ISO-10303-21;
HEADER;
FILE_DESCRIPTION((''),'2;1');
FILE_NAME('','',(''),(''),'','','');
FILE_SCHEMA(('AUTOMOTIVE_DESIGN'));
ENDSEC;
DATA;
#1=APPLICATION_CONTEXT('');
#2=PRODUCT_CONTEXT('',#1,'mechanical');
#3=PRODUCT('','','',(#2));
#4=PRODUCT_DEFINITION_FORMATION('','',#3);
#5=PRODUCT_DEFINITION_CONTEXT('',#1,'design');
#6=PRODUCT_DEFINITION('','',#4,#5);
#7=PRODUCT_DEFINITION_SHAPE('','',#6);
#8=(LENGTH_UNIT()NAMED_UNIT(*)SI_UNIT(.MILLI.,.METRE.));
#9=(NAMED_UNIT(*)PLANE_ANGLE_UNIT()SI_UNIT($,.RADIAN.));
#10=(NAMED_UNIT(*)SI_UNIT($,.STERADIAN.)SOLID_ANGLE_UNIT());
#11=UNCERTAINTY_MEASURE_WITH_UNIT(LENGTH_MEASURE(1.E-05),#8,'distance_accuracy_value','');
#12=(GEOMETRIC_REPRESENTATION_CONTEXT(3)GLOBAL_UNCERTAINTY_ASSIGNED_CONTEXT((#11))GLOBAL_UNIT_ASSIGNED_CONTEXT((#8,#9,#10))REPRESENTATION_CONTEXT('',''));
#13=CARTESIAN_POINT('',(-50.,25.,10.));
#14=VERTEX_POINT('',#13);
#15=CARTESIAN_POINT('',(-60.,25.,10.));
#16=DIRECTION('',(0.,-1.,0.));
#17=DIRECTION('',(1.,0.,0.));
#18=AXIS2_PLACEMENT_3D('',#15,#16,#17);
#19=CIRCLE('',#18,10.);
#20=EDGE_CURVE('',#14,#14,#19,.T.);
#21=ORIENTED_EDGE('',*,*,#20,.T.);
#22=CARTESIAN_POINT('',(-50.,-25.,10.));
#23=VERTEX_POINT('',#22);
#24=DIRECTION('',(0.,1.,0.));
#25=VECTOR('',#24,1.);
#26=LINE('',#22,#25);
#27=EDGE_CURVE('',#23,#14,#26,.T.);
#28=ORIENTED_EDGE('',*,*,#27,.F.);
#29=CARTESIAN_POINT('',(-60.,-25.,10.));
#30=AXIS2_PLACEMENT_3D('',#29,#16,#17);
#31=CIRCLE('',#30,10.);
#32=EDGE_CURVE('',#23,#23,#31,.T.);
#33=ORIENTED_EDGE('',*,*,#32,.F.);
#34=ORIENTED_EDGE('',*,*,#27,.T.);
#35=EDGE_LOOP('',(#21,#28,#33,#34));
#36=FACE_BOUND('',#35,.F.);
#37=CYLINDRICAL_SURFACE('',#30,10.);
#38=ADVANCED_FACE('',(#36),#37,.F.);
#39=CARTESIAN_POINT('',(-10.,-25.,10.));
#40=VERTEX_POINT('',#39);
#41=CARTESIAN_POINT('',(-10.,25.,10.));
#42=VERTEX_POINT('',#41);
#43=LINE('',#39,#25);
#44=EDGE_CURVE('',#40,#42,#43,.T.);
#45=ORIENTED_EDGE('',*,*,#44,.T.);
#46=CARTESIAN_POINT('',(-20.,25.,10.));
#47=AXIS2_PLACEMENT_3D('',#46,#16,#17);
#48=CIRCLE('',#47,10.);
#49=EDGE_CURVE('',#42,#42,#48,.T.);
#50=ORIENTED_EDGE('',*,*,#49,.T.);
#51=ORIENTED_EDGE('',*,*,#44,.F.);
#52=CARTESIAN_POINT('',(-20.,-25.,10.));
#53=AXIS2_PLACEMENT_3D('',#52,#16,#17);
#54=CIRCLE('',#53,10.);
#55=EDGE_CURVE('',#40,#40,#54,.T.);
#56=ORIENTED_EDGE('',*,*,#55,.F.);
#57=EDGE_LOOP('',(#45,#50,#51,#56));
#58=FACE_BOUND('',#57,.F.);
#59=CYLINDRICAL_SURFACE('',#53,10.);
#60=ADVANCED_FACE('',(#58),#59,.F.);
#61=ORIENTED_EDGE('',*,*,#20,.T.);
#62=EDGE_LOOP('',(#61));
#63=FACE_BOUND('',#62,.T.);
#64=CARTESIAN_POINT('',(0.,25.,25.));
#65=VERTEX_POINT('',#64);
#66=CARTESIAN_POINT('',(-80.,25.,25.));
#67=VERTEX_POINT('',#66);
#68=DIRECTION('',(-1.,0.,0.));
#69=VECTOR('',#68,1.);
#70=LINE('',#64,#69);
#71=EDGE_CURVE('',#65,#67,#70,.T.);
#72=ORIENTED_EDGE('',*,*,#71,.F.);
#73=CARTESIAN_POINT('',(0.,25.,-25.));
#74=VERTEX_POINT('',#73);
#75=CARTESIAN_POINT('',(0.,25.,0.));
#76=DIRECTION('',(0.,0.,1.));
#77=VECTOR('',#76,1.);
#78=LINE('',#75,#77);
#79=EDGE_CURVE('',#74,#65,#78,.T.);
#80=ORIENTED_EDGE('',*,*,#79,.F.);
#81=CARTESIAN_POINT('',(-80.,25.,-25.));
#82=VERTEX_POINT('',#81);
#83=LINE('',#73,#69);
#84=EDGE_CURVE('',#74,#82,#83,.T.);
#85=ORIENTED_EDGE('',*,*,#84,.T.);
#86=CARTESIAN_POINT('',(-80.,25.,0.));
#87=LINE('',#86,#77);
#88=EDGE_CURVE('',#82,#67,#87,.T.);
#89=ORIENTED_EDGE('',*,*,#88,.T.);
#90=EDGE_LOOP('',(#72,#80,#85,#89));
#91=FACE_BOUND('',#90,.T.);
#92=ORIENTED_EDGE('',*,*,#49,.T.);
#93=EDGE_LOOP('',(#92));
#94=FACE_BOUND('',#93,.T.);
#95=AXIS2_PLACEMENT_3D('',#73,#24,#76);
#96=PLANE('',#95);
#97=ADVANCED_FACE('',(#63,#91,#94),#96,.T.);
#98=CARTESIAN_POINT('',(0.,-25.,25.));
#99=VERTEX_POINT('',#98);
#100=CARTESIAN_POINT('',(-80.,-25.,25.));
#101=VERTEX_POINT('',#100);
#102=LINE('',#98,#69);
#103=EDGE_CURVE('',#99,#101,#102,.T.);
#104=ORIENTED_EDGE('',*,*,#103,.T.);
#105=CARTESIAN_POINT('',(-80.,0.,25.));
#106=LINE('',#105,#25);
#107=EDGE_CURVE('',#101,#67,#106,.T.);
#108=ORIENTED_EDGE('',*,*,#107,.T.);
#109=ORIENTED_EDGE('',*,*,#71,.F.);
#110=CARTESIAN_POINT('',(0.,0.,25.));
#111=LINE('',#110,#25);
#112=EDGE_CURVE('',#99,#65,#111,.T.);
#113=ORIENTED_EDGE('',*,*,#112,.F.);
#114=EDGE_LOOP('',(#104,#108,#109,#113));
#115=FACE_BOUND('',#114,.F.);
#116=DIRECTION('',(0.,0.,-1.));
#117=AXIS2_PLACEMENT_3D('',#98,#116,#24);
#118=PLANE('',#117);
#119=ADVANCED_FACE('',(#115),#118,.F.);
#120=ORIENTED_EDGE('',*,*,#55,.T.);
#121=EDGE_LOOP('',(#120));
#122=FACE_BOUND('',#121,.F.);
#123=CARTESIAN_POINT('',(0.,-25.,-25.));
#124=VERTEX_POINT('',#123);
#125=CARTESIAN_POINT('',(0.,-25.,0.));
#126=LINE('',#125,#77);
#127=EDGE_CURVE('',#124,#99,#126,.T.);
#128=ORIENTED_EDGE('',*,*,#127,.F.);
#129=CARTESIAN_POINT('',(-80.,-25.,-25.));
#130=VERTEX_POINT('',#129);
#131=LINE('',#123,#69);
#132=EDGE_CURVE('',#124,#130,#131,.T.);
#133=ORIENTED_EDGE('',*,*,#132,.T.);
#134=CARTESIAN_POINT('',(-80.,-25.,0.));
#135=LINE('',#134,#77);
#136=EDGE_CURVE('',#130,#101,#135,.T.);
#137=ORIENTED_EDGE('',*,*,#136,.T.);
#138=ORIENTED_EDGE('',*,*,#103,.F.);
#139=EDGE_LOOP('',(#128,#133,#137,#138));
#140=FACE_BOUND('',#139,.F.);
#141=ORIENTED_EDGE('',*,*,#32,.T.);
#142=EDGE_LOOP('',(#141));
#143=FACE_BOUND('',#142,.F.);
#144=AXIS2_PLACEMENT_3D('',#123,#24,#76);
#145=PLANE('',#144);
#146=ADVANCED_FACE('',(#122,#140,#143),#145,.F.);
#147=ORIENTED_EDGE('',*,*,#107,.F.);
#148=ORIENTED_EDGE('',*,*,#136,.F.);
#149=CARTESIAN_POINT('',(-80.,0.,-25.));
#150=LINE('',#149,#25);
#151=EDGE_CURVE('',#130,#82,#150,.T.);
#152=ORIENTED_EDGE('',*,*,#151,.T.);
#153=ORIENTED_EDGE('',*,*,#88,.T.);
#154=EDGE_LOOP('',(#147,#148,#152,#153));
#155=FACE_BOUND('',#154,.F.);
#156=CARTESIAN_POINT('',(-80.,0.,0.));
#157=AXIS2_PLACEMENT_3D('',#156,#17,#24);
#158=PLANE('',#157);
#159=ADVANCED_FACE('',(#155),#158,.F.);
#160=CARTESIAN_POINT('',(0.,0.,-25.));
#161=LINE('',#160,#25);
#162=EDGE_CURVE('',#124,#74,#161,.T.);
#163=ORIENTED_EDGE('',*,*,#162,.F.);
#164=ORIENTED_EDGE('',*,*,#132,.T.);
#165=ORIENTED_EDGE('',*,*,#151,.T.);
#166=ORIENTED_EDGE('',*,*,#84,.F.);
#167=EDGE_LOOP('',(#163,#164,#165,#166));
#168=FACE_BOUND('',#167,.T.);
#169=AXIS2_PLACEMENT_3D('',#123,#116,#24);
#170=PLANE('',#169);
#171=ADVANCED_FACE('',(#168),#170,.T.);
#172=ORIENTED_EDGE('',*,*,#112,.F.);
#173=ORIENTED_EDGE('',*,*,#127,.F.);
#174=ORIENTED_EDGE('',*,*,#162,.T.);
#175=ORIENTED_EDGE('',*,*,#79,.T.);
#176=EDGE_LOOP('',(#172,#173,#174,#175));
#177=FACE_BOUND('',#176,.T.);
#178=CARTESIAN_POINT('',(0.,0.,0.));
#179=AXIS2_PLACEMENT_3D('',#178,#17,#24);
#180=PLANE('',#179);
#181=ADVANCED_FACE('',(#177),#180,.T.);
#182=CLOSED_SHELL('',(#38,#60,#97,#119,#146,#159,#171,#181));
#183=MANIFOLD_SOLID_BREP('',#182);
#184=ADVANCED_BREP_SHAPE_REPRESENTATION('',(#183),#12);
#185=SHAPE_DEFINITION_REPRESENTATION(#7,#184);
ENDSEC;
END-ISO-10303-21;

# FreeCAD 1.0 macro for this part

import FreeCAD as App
import Part
import Sketcher


def add_polygon(sketch, points):
    """Adds a closed chain of lines whose ends are joined by coincident constraints."""
    first, n = sketch.GeometryCount, len(points)
    for a, b in zip(points, points[1:] + points[:1]):
        sketch.addGeometry(Part.LineSegment(App.Vector(*a, 0), App.Vector(*b, 0)), False)
    for i in range(n):
        sketch.addConstraint(Sketcher.Constraint("Coincident", first + i, 2, first + (i + 1) % n, 1))

doc = App.newDocument("Part")
body = doc.addObject("PartDesign::Body", "Body")

# Sketch on YZ plane
sketch1 = body.newObject("Sketcher::SketchObject", "Sketch")
sketch1.AttachmentSupport = (doc.getObject("YZ_Plane"), [""])
sketch1.MapMode = "FlatFace"
add_polygon(sketch1, [(-25, 25), (-25, -25), (25, -25), (25, 25)])  # lines 0-3
sketch1.addConstraint([
    Sketcher.Constraint("Vertical", 0),
    Sketcher.Constraint("Horizontal", 1),
    Sketcher.Constraint("Vertical", 2),
    Sketcher.Constraint("Horizontal", 3),
    Sketcher.Constraint("Symmetric", 0, 2, 2, 2, -1, 1),
    Sketcher.Constraint("Equal", 3, 0),
    Sketcher.Constraint("DistanceX", 1, 1, 1, 2, 50.0),
])
pad1 = body.newObject("PartDesign::Pad", "Pad")
pad1.Profile = sketch1
pad1.Length = 80
pad1.Reversed = True

# Sketch on XZ plane
sketch2 = body.newObject("Sketcher::SketchObject", "Sketch001")
sketch2.AttachmentSupport = (doc.getObject("XZ_Plane"), [""])
sketch2.MapMode = "FlatFace"
sketch2.AttachmentOffset = App.Placement(App.Vector(0, 0, 25), App.Rotation())
sketch2.addGeometry([
    Part.Circle(App.Vector(-60, 10, 0), App.Vector(0, 0, 1), 10),
    Part.Circle(App.Vector(-20, 10, 0), App.Vector(0, 0, 1), 10),
], False)
sketch2.addConstraint([
    Sketcher.Constraint("Equal", 0, 1),
    Sketcher.Constraint("Horizontal", 0, 3, 1, 3),
    Sketcher.Constraint("Diameter", 0, 20.0),
    Sketcher.Constraint("DistanceX", 0, 3, -1, 1, 60.0),
    Sketcher.Constraint("DistanceY", -1, 1, 0, 3, 10.0),
    Sketcher.Constraint("DistanceX", 1, 3, -1, 1, 20.0),
])
pocket1 = body.newObject("PartDesign::Pocket", "Pocket")
pocket1.Profile = sketch2
pocket1.Type = "ThroughAll"

doc.recompute()
